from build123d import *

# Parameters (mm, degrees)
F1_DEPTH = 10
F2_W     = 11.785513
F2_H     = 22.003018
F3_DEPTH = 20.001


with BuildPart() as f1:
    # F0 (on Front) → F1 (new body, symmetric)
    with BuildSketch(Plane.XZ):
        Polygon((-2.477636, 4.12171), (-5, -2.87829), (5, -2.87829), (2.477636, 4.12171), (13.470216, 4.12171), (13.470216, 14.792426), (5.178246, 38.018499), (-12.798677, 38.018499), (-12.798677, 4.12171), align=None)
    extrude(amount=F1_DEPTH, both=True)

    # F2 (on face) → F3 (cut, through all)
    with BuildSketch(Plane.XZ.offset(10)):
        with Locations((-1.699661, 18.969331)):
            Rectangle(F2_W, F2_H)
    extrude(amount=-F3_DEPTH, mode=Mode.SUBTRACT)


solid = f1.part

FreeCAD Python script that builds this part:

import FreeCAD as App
import Part
import Sketcher
from FreeCAD import Vector
Q = App.Units.Quantity


def add_polygon(sketch, points):
    """Adds a closed chain of lines whose ends are joined by coincident constraints."""
    first, n = sketch.GeometryCount, len(points)
    for a, b in zip(points, points[1:] + points[:1]):
        sketch.addGeometry(Part.LineSegment(App.Vector(*a, 0), App.Vector(*b, 0)), False)
    for i in range(n):
        sketch.addConstraint(Sketcher.Constraint("Coincident", first + i, 2, first + (i + 1) % n, 1))

doc = App.newDocument("Part")
body = doc.addObject("PartDesign::Body", "Body")

# Sketch on XZ plane
sketch1 = doc.addObject("Sketcher::SketchObject", "Sketch")
body.addObject(sketch1)
sketch1.AttachmentSupport = (doc.XZ_Plane, [""])
sketch1.MapMode = "FlatFace"
add_polygon(sketch1, [(-2.477636, 4.12171), (-5, -2.87829), (5, -2.87829), (2.477636, 4.12171), (13.470216, 4.12171), (13.470216, 14.792426), (5.178246, 38.018499), (-12.798677, 38.018499), (-12.798677, 4.12171)])  # lines 0-8
sketch1.addConstraint(Sketcher.Constraint("Horizontal", 1))
sketch1.addConstraint(Sketcher.Constraint("Horizontal", 3))
sketch1.addConstraint(Sketcher.Constraint("Vertical", 4))
sketch1.addConstraint(Sketcher.Constraint("Horizontal", 6))
sketch1.addConstraint(Sketcher.Constraint("Vertical", 7))
sketch1.addConstraint(Sketcher.Constraint("Horizontal", 8))
sketch1.addConstraint(Sketcher.Constraint("Symmetric", 2, 2, 8, 2, -2))
sketch1.addConstraint(Sketcher.Constraint("Equal", 0, 2))
sketch1.addConstraint(Sketcher.Constraint("DistanceX", 1, 1, 1, 2, Q("10 mm")))
sketch1.addConstraint(Sketcher.Constraint("DistanceY", 1, 2, 2, 2, Q("7 mm")))
sketch1.addConstraint(Sketcher.Constraint("DistanceX", 3, 1, 3, 2, Q("10.99258 mm")))
sketch1.addConstraint(Sketcher.Constraint("DistanceX", 8, 1, 8, 2, Q("10.321041 mm")))
sketch1.addConstraint(Sketcher.Constraint("DistanceY", 7, 2, 7, 1, Q("33.896789 mm")))
sketch1.addConstraint(Sketcher.Constraint("DistanceY", -1, 1, 5, 2, Q("38.018499 mm")))
sketch1.addConstraint(Sketcher.Constraint("DistanceX", 6, 2, 6, 1, Q("17.976923 mm")))
sketch1.addConstraint(Sketcher.Constraint("DistanceY", 4, 1, 4, 2, Q("10.670716 mm")))
sketch1.addConstraint(Sketcher.Constraint("DistanceX", 5, 2, 4, 2, Q("8.29197 mm")))
pad1 = doc.addObject("PartDesign::Pad", "Pad")
body.addObject(pad1)
pad1.Profile = sketch1
pad1.Length = 20
pad1.Midplane = True

# Sketch on XZ plane
sketch2 = doc.addObject("Sketcher::SketchObject", "Sketch001")
body.addObject(sketch2)
sketch2.AttachmentSupport = (doc.XZ_Plane, [""])
sketch2.MapMode = "FlatFace"
sketch2.AttachmentOffset = App.Placement(Vector(0, 0, 10), App.Rotation())
add_polygon(sketch2, [(-7.592417, 29.97084), (-7.592417, 7.967822), (4.193096, 7.967822), (4.193096, 29.97084)])  # lines 0-3
sketch2.addConstraint(Sketcher.Constraint("Vertical", 0))
sketch2.addConstraint(Sketcher.Constraint("Horizontal", 1))
sketch2.addConstraint(Sketcher.Constraint("Vertical", 2))
sketch2.addConstraint(Sketcher.Constraint("Horizontal", 3))
sketch2.addConstraint(Sketcher.Constraint("DistanceX", 1, 1, 1, 2, Q("11.785513 mm")))
sketch2.addConstraint(Sketcher.Constraint("DistanceY", 0, 2, 0, 1, Q("22.003018 mm")))
sketch2.addConstraint(Sketcher.Constraint("DistanceY", -1, 1, 2, 2, Q("29.97084 mm")))
sketch2.addConstraint(Sketcher.Constraint("DistanceX", 0, 2, -1, 1, Q("7.592417 mm")))
pocket1 = doc.addObject("PartDesign::Pocket", "Pocket")
body.addObject(pocket1)
pocket1.Profile = sketch2
pocket1.Type = "ThroughAll"

doc.recompute()
